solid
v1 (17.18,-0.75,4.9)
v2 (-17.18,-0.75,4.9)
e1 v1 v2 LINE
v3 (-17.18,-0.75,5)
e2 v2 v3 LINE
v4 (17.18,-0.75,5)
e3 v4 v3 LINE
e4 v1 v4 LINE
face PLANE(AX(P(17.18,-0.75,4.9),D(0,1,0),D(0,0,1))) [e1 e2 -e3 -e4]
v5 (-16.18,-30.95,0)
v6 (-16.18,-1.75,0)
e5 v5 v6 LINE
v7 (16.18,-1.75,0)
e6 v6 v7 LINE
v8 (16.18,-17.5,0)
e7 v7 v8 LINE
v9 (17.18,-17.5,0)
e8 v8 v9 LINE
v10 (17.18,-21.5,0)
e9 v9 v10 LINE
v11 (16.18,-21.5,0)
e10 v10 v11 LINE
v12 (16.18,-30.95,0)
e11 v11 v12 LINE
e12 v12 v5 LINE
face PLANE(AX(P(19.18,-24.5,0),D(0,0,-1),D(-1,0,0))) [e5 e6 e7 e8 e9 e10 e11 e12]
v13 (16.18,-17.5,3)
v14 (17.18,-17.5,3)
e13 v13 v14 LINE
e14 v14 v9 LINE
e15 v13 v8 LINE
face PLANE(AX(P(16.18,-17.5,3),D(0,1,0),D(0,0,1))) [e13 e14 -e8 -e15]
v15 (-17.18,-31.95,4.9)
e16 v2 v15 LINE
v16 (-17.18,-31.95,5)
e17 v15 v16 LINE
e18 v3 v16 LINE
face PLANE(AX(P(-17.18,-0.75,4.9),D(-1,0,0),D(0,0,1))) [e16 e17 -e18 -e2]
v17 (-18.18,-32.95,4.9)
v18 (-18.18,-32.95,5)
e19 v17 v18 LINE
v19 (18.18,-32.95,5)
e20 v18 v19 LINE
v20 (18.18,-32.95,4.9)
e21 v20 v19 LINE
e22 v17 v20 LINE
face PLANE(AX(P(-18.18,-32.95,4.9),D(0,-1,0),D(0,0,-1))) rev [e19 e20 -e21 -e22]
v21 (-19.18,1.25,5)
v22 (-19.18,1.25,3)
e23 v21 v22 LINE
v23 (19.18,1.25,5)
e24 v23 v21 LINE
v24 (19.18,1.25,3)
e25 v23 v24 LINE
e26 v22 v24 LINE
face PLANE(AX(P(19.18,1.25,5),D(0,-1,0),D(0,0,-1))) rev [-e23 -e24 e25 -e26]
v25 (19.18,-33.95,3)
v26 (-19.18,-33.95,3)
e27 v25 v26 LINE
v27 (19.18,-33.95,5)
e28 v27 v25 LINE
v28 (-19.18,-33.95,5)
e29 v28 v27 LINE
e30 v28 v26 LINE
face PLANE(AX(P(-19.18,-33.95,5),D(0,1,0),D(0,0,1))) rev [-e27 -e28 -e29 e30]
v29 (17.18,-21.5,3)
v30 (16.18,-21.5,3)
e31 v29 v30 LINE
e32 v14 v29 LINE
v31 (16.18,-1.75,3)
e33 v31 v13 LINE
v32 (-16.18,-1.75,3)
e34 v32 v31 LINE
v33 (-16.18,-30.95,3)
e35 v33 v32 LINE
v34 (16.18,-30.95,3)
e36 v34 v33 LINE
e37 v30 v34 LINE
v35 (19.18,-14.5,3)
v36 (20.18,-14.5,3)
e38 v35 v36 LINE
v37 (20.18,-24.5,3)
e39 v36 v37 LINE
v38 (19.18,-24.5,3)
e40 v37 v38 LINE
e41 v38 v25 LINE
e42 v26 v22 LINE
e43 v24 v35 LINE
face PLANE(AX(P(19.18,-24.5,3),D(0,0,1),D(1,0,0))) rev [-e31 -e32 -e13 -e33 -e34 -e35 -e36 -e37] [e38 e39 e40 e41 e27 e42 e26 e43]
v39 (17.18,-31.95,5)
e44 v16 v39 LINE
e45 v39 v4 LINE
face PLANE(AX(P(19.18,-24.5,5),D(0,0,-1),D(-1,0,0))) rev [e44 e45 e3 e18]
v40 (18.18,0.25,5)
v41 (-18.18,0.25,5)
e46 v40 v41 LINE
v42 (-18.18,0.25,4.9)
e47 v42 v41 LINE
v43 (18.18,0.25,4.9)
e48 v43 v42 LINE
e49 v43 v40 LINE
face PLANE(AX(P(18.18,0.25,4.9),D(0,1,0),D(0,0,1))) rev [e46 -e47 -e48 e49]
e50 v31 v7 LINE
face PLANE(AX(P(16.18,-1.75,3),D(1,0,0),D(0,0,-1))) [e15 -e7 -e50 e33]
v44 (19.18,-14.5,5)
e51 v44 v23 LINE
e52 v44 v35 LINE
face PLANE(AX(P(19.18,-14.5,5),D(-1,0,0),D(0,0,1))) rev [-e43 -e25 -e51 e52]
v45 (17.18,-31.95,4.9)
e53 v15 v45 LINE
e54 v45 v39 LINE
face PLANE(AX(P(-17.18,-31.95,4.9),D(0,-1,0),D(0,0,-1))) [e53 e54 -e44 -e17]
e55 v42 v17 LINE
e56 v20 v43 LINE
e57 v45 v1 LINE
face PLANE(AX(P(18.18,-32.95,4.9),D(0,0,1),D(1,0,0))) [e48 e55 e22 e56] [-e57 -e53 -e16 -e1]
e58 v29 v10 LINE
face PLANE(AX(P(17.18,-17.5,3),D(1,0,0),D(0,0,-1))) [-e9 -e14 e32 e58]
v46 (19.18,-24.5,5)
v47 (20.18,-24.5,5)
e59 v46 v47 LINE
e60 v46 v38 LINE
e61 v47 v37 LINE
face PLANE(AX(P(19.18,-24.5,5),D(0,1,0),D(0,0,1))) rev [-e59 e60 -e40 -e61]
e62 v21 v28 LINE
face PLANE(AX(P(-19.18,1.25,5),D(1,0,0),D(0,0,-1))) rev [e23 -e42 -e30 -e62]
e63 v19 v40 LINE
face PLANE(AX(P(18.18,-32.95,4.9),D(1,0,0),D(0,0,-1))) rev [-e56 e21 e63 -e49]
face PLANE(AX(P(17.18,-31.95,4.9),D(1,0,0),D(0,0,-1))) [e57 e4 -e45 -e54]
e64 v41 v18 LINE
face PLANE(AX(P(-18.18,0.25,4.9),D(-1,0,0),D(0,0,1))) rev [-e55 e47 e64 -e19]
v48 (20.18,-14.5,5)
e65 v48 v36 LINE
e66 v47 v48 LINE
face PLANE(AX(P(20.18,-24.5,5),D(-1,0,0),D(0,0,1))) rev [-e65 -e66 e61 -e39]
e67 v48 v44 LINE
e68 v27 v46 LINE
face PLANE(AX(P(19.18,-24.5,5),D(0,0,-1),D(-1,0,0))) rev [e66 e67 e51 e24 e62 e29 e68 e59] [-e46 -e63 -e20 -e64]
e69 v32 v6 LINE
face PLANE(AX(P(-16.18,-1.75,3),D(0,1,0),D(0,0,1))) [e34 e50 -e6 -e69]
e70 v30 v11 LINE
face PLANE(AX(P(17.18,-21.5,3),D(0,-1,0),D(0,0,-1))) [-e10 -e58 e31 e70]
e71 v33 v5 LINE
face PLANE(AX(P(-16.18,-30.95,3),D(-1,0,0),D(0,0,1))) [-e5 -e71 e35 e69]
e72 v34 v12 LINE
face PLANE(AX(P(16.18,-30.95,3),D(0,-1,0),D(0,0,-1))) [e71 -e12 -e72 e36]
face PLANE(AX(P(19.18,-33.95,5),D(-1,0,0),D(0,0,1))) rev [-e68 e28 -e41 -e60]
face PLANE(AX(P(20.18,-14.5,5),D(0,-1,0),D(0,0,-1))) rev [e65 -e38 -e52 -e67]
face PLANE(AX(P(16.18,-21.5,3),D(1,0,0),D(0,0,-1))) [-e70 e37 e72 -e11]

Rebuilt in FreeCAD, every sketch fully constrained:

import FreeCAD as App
import Part
import Sketcher


def add_polygon(sketch, points):
    """Adds a closed chain of lines whose ends are joined by coincident constraints."""
    first, n = sketch.GeometryCount, len(points)
    for a, b in zip(points, points[1:] + points[:1]):
        sketch.addGeometry(Part.LineSegment(App.Vector(*a, 0), App.Vector(*b, 0)), False)
    for i in range(n):
        sketch.addConstraint(Sketcher.Constraint("Coincident", first + i, 2, first + (i + 1) % n, 1))

doc = App.newDocument("Part")
body = doc.addObject("PartDesign::Body", "Body")

sketch1 = body.newObject("Sketcher::SketchObject", "Sketch")
sketch1.AttachmentSupport = (doc.getObject("XY_Plane"), [""])
sketch1.MapMode = "FlatFace"
add_polygon(sketch1, [(19.2, -24.5), (20.2, -24.5), (20.2, -14.5), (19.2, -14.5), (19.2, 1.2), (-19.2, 1.2), (-19.2, -34), (19.2, -34)])
sketch1.addConstraint([
    Sketcher.Constraint("Horizontal", 0),
    Sketcher.Constraint("Vertical", 1),
    Sketcher.Constraint("Horizontal", 2),
    Sketcher.Constraint("Vertical", 3),
    Sketcher.Constraint("Horizontal", 4),
    Sketcher.Constraint("Vertical", 5),
    Sketcher.Constraint("Horizontal", 6),
    Sketcher.Constraint("Vertical", 7),
    Sketcher.Constraint("Vertical", 3, 2, 6, 2),
    Sketcher.Constraint("DistanceX", 0, 1, 0, 2, 1.0),
    Sketcher.Constraint("DistanceY", 1, 1, 1, 2, 10.0),
    Sketcher.Constraint("DistanceY", 5, 2, 5, 1, 35.2),
    Sketcher.Constraint("DistanceX", 4, 2, 4, 1, 38.36),
    Sketcher.Constraint("DistanceY", 3, 1, 3, 2, 15.75),
    Sketcher.Constraint("DistanceY", 0, 2, -1, 1, 24.5),
    Sketcher.Constraint("DistanceX", -1, 1, 0, 2, 20.18),
])
pad1 = body.newObject("PartDesign::Pad", "Pad")
pad1.Profile = sketch1
pad1.Length = 5

sketch2 = body.newObject("Sketcher::SketchObject", "Sketch001")
sketch2.AttachmentSupport = (doc.getObject("XY_Plane"), [""])
sketch2.MapMode = "FlatFace"
add_polygon(sketch2, [(19.2, -24.5), (19.2, -34), (-19.2, -34), (-19.2, 1.2), (19.2, 1.2), (19.2, -14.5), (20.2, -14.5), (20.2, -24.5)])
add_polygon(sketch2, [(16.2, -30.9), (16.2, -21.5), (17.2, -21.5), (17.2, -17.5), (16.2, -17.5), (16.2, -1.8), (-16.2, -1.8), (-16.2, -30.9)])
sketch2.addConstraint([
    Sketcher.Constraint("Vertical", 0),
    Sketcher.Constraint("Horizontal", 1),
    Sketcher.Constraint("Vertical", 2),
    Sketcher.Constraint("Horizontal", 3),
    Sketcher.Constraint("Vertical", 4),
    Sketcher.Constraint("Horizontal", 5),
    Sketcher.Constraint("Vertical", 6),
    Sketcher.Constraint("Horizontal", 7),
    Sketcher.Constraint("Vertical", 8),
    Sketcher.Constraint("Horizontal", 9),
    Sketcher.Constraint("Vertical", 10),
    Sketcher.Constraint("Horizontal", 11),
    Sketcher.Constraint("Vertical", 12),
    Sketcher.Constraint("Horizontal", 13),
    Sketcher.Constraint("Vertical", 14),
    Sketcher.Constraint("Horizontal", 15),
    Sketcher.Constraint("Vertical", 0, 2, 3, 2),
    Sketcher.Constraint("Vertical", 8, 2, 11, 2),
    Sketcher.Constraint("Equal", 7, 9),
    Sketcher.Constraint("Equal", 0, 8),
    Sketcher.Constraint("Equal", 4, 12),
    Sketcher.Constraint("DistanceX", 5, 1, 5, 2, 1.0),
    Sketcher.Constraint("DistanceY", 6, 2, 6, 1, 10.0),
    Sketcher.Constraint("DistanceY", 10, 1, 10, 2, 4.0),
    Sketcher.Constraint("DistanceY", 2, 1, 2, 2, 35.2),
    Sketcher.Constraint("DistanceX", 8, 2, 7, 2, 3.0),
    Sketcher.Constraint("DistanceY", 7, 2, 8, 2, 3.0),
    Sketcher.Constraint("DistanceX", 2, 2, 13, 2, 3.0),
    Sketcher.Constraint("DistanceX", 1, 2, 1, 1, 38.36),
    Sketcher.Constraint("DistanceY", 0, 2, 0, 1, 9.45),
    Sketcher.Constraint("DistanceY", 4, 2, -1, 1, 14.5),
    Sketcher.Constraint("DistanceX", -1, 1, 0, 2, 19.18),
])
pocket1 = body.newObject("PartDesign::Pocket", "Pocket")
pocket1.Profile = sketch2
pocket1.Length = 3
pocket1.Reversed = True

sketch3 = body.newObject("Sketcher::SketchObject", "Sketch002")
sketch3.AttachmentSupport = (doc.getObject("XY_Plane"), [""])
sketch3.MapMode = "FlatFace"
sketch3.AttachmentOffset = App.Placement(App.Vector(0, 0, 5), App.Rotation())
add_polygon(sketch3, [(-18, 0), (-18, -33), (18, -33), (18, 0)])
add_polygon(sketch3, [(17, -32), (-17, -32), (-17, -1), (17, -1)])
sketch3.addConstraint([
    Sketcher.Constraint("Vertical", 0),
    Sketcher.Constraint("Horizontal", 1),
    Sketcher.Constraint("Vertical", 2),
    Sketcher.Constraint("Horizontal", 3),
    Sketcher.Constraint("Horizontal", 4),
    Sketcher.Constraint("Vertical", 5),
    Sketcher.Constraint("Horizontal", 6),
    Sketcher.Constraint("Vertical", 7),
    Sketcher.Constraint("DistanceY", 0, 2, 0, 1, 33.2),
    Sketcher.Constraint("DistanceY", 5, 1, 5, 2, 31.2),
    Sketcher.Constraint("DistanceX", 0, 2, 4, 2, 1.0),
    Sketcher.Constraint("DistanceY", 0, 2, 4, 2, 1.0),
    Sketcher.Constraint("DistanceX", 6, 2, 2, 2, 1.0),
    Sketcher.Constraint("DistanceX", 1, 1, 1, 2, 36.36),
    Sketcher.Constraint("DistanceX", 0, 2, -1, 1, 18.18),
    Sketcher.Constraint("DistanceY", 0, 2, -1, 1, 32.95),
])
pocket2 = body.newObject("PartDesign::Pocket", "Pocket001")
pocket2.Profile = sketch3
pocket2.Length = 0.1

doc.recompute()
